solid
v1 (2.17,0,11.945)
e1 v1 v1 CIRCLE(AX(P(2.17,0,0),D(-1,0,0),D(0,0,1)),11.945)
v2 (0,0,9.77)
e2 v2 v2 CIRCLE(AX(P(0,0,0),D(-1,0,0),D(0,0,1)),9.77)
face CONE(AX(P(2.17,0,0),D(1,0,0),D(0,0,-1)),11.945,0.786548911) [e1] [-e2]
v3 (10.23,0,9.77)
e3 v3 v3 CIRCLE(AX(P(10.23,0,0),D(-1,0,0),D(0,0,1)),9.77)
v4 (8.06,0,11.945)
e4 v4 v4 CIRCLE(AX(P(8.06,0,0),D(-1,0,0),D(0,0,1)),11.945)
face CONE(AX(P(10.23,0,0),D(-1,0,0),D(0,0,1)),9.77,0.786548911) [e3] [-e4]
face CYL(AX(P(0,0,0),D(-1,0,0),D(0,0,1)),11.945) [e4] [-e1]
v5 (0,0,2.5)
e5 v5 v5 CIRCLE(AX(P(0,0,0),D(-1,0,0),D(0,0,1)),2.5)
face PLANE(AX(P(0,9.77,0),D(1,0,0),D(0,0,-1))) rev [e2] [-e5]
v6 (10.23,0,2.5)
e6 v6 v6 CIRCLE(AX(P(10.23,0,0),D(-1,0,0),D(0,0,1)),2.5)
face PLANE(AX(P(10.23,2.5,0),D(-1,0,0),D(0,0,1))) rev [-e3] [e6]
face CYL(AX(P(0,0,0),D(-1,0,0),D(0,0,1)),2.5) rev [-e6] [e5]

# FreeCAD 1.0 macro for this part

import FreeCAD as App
import Part
import Sketcher

V = App.Vector
Q = App.Units.Quantity

doc = App.newDocument("Part")
body = doc.addObject("PartDesign::Body", "Body")

# Sketch on XY plane
sketch1 = doc.addObject("Sketcher::SketchObject", "Sketch")
body.addObject(sketch1)
sketch1.AttachmentSupport = (doc.XY_Plane, [""])
sketch1.MapMode = "FlatFace"
sketch1.addGeometry(Part.LineSegment(V(10.2, 2.5, 0), V(10.2, 9.8, 0)), False)
sketch1.addGeometry(Part.LineSegment(V(10.2, 9.8, 0), V(8.1, 11.9, 0)), False)
sketch1.addGeometry(Part.LineSegment(V(8.1, 11.9, 0), V(2.2, 11.9, 0)), False)
sketch1.addGeometry(Part.LineSegment(V(2.2, 11.9, 0), V(0, 9.8, 0)), False)
sketch1.addGeometry(Part.LineSegment(V(0, 9.8, 0), V(0, 2.5, 0)), False)
sketch1.addGeometry(Part.LineSegment(V(0, 2.5, 0), V(10.2, 2.5, 0)), False)
sketch1.addConstraint(Sketcher.Constraint("Coincident", 0, 2, 1, 1))
sketch1.addConstraint(Sketcher.Constraint("Coincident", 1, 2, 2, 1))
sketch1.addConstraint(Sketcher.Constraint("Coincident", 2, 2, 3, 1))
sketch1.addConstraint(Sketcher.Constraint("Coincident", 3, 2, 4, 1))
sketch1.addConstraint(Sketcher.Constraint("Coincident", 4, 2, 5, 1))
sketch1.addConstraint(Sketcher.Constraint("Coincident", 5, 2, 0, 1))
sketch1.addConstraint(Sketcher.Constraint("Vertical", 0))
sketch1.addConstraint(Sketcher.Constraint("Horizontal", 2))
sketch1.addConstraint(Sketcher.Constraint("Vertical", 4))
sketch1.addConstraint(Sketcher.Constraint("Horizontal", 5))
sketch1.addConstraint(Sketcher.Constraint("PointOnObject", 3, 2, -2))
sketch1.addConstraint(Sketcher.Constraint("Horizontal", 0, 2, 3, 2))
sketch1.addConstraint(Sketcher.Constraint("Equal", 1, 3))
sketch1.addConstraint(Sketcher.Constraint("DistanceX", 2, 2, 2, 1, Q("5.89 mm")))
sketch1.addConstraint(Sketcher.Constraint("DistanceX", 5, 1, 5, 2, Q("10.23 mm")))
sketch1.addConstraint(Sketcher.Constraint("DistanceY", 0, 1, 0, 2, Q("7.27 mm")))
sketch1.addConstraint(Sketcher.Constraint("DistanceY", -1, 1, 4, 2, Q("2.5 mm")))
sketch1.addConstraint(Sketcher.Constraint("DistanceY", -1, 1, 1, 2, Q("11.945 mm")))
revolution = doc.addObject("PartDesign::Revolution", "Revolution")
body.addObject(revolution)
revolution.Profile = sketch1
revolution.ReferenceAxis = (sketch1, ["H_Axis"])
revolution.Angle = 360

doc.recompute()
